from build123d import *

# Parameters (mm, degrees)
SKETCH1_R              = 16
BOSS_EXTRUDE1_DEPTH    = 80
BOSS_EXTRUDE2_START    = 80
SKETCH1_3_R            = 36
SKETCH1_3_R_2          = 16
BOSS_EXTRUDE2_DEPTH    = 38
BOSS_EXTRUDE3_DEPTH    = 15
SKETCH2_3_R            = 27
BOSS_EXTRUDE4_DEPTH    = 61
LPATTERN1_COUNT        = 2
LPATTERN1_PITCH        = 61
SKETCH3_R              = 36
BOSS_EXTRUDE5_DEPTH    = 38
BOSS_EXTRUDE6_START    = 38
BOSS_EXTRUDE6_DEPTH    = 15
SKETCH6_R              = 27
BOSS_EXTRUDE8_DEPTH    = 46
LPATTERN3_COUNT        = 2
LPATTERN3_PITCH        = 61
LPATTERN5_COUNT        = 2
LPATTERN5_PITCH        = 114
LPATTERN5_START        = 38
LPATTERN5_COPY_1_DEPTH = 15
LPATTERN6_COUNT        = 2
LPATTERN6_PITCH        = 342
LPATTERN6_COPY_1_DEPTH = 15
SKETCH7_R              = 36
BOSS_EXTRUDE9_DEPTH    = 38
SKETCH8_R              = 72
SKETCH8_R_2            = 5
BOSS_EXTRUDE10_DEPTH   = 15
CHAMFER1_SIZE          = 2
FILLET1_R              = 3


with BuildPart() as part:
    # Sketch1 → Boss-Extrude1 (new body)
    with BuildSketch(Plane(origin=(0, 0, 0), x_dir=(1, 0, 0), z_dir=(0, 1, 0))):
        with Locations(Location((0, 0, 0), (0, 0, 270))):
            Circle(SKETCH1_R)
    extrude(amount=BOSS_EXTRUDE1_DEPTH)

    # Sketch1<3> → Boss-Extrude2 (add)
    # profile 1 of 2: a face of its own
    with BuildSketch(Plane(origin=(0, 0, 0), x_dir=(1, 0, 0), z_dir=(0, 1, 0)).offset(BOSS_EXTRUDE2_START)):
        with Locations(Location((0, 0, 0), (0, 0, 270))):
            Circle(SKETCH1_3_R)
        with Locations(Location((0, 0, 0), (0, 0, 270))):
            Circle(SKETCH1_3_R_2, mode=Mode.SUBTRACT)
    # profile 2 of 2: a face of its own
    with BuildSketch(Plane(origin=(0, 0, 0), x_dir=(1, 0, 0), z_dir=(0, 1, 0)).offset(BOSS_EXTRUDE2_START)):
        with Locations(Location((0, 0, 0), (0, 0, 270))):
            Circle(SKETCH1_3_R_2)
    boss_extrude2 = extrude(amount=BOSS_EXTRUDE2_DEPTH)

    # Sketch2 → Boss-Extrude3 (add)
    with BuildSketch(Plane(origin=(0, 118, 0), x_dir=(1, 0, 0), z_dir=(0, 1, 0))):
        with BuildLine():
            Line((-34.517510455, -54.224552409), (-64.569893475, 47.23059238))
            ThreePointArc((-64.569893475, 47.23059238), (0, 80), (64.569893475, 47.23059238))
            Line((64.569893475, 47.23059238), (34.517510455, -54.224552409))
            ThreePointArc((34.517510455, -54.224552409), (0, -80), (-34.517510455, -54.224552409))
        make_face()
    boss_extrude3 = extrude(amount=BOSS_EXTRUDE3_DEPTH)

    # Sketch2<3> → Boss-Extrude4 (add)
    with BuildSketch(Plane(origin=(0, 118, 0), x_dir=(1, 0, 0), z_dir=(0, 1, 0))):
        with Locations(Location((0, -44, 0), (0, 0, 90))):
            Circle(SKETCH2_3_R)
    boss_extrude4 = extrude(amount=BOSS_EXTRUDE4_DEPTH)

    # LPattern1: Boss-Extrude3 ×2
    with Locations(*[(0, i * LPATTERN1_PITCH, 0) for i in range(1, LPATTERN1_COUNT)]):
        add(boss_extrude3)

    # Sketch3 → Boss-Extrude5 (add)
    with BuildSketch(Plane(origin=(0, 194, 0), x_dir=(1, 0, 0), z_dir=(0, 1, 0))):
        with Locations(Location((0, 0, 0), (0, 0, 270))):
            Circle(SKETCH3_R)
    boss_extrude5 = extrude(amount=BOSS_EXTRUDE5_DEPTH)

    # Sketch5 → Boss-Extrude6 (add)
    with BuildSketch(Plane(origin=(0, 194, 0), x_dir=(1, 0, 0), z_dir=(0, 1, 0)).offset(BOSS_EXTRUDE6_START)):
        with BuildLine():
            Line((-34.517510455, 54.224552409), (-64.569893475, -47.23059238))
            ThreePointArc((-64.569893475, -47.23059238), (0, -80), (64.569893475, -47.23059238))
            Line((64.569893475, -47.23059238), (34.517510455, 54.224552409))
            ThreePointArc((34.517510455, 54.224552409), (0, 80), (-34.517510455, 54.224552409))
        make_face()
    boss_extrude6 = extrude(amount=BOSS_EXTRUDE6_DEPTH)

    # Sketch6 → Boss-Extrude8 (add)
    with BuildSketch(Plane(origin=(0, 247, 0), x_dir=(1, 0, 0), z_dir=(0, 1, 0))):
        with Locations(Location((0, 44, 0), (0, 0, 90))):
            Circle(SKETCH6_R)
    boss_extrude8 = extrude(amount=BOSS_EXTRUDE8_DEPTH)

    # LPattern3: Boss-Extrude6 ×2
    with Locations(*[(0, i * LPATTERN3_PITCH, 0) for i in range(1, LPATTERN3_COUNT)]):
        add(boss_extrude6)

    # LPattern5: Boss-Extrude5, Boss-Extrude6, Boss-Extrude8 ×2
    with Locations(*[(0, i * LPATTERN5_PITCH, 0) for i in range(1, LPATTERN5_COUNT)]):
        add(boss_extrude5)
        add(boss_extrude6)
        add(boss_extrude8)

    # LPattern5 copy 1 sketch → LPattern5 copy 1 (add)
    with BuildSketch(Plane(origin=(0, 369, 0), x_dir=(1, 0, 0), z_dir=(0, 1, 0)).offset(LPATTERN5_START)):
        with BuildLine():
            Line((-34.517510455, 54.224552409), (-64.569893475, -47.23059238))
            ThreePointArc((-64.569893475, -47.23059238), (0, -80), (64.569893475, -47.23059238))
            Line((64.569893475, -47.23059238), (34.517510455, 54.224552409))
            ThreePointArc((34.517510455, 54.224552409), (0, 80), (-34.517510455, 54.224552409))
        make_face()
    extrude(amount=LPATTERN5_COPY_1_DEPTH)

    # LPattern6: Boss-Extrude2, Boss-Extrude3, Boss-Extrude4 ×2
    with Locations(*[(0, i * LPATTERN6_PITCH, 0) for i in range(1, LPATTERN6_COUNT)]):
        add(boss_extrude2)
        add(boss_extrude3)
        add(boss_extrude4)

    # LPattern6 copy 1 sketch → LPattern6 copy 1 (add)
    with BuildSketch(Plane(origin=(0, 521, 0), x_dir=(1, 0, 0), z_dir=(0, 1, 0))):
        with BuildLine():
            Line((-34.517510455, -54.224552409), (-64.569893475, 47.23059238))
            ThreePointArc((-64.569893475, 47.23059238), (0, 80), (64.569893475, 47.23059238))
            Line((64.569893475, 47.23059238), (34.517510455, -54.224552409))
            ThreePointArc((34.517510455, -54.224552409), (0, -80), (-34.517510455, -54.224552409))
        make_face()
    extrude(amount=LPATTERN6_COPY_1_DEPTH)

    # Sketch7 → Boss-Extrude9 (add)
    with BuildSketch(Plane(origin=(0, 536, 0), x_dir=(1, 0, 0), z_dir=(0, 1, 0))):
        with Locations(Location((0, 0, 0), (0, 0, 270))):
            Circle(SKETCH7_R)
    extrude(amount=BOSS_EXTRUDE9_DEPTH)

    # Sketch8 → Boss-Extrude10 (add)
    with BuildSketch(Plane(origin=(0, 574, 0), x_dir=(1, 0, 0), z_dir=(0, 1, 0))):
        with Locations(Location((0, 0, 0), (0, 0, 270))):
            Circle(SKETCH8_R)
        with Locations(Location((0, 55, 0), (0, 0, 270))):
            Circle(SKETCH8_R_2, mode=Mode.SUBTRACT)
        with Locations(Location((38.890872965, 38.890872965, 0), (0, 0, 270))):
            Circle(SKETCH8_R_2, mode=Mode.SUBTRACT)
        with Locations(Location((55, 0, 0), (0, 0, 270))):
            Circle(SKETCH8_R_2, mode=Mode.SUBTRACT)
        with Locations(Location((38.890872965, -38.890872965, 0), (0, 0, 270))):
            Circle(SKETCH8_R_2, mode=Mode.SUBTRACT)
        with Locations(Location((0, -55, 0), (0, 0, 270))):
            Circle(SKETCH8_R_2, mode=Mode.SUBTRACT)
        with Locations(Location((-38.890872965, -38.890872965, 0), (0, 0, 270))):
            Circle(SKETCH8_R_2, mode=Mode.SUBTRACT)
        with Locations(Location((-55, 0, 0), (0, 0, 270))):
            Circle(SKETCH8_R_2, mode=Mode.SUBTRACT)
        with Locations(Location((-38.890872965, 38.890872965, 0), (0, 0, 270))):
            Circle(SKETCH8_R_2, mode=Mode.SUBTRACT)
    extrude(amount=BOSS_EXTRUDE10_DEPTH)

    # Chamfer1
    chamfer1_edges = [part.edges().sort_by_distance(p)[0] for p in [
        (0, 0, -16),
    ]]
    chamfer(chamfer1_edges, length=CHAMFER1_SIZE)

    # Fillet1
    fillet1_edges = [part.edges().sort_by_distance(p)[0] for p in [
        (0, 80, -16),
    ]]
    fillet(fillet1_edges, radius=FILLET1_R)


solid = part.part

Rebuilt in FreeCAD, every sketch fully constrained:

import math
import FreeCAD as App
import Part
import Sketcher
from FreeCAD import Vector
Q = App.Units.Quantity


def edges_at(feature, points):
    """Names of the edges that pass closest to the given points."""
    edges = feature.Shape.Edges
    near = lambda p: min(range(len(edges)), key=lambda i: edges[i].distToShape(Part.Vertex(*p))[0])
    return sorted({f"Edge{near(p) + 1}" for p in points})

doc = App.newDocument("Part")
body = doc.addObject("PartDesign::Body", "Body")

# Sketch on XZ plane
sketch1 = body.newObject("Sketcher::SketchObject", "Sketch")
sketch1.AttachmentSupport = (doc.getObject("XZ_Plane"), [""])
sketch1.MapMode = "FlatFace"
sketch1.addGeometry(Part.Circle(Vector(0, 0, 0), Vector(0, 0, 1), 16), False)
sketch1.addConstraint(Sketcher.Constraint("Coincident", 0, 3, -1, 1))
sketch1.addConstraint(Sketcher.Constraint("Diameter", 0, Q("32 mm")))
pad1 = body.newObject("PartDesign::Pad", "Pad")
pad1.Profile = sketch1
pad1.Length = 80
pad1.Reversed = True

# Sketch on XZ plane
sketch2 = body.newObject("Sketcher::SketchObject", "Sketch001")
sketch2.AttachmentSupport = (doc.getObject("XZ_Plane"), [""])
sketch2.MapMode = "FlatFace"
sketch2.AttachmentOffset = App.Placement(Vector(0, 0, -80), App.Rotation())
sketch2.addGeometry(Part.Circle(Vector(0, 0, 0), Vector(0, 0, 1), 36), False)
sketch2.addConstraint(Sketcher.Constraint("Coincident", 0, 3, -1, 1))
sketch2.addConstraint(Sketcher.Constraint("Diameter", 0, Q("72 mm")))
pad2 = body.newObject("PartDesign::Pad", "Pad001")
pad2.Profile = sketch2
pad2.Length = 38
pad2.Reversed = True

# Sketch on XZ plane
sketch3 = body.newObject("Sketcher::SketchObject", "Sketch002")
sketch3.AttachmentSupport = (doc.getObject("XZ_Plane"), [""])
sketch3.MapMode = "FlatFace"
sketch3.AttachmentOffset = App.Placement(Vector(0, 0, -118), App.Rotation())
sketch3.addGeometry(Part.LineSegment(Vector(-65, -47, 0), Vector(-35, 54, 0)), False)
sketch3.addGeometry(Part.ArcOfCircle(Part.Circle(Vector(0, 44, 0), Vector(0, 0, 1), 36), math.radians(16), math.radians(164)), False)
sketch3.addGeometry(Part.LineSegment(Vector(35, 54, 0), Vector(65, -47, 0)), False)
sketch3.addGeometry(Part.ArcOfCircle(Part.Circle(Vector(0, 0, 0), Vector(0, 0, 1), 80), math.radians(-144), math.radians(-36)), False)
sketch3.addConstraint(Sketcher.Constraint("Tangent", 0, 2, 1, 2))
sketch3.addConstraint(Sketcher.Constraint("Tangent", 1, 1, 2, 1))
sketch3.addConstraint(Sketcher.Constraint("Coincident", 2, 2, 3, 2))
sketch3.addConstraint(Sketcher.Constraint("Coincident", 3, 1, 0, 1))
sketch3.addConstraint(Sketcher.Constraint("Coincident", 3, 3, -1, 1))
sketch3.addConstraint(Sketcher.Constraint("Symmetric", 0, 2, 1, 1, -2))
sketch3.addConstraint(Sketcher.Constraint("Radius", 1, Q("36 mm")))
sketch3.addConstraint(Sketcher.Constraint("Radius", 3, Q("80 mm")))
sketch3.addConstraint(Sketcher.Constraint("DistanceY", -1, 1, 1, 3, Q("44 mm")))
sketch3.addConstraint(Sketcher.Constraint("Angle", 0, Q("73.5 deg")))
pad3 = body.newObject("PartDesign::Pad", "Pad002")
pad3.Profile = sketch3
pad3.Length = 15
pad3.Reversed = True

# Sketch on XZ plane
sketch4 = body.newObject("Sketcher::SketchObject", "Sketch003")
sketch4.AttachmentSupport = (doc.getObject("XZ_Plane"), [""])
sketch4.MapMode = "FlatFace"
sketch4.AttachmentOffset = App.Placement(Vector(0, 0, -118), App.Rotation())
sketch4.addGeometry(Part.Circle(Vector(0, 44, 0), Vector(0, 0, 1), 27), False)
sketch4.addConstraint(Sketcher.Constraint("PointOnObject", 0, 3, -2))
sketch4.addConstraint(Sketcher.Constraint("Diameter", 0, Q("54 mm")))
sketch4.addConstraint(Sketcher.Constraint("DistanceY", -1, 1, 0, 3, Q("44 mm")))
pad4 = body.newObject("PartDesign::Pad", "Pad003")
pad4.Profile = sketch4
pad4.Length = 61
pad4.Reversed = True
doc.recompute()

linearpattern = body.newObject("PartDesign::LinearPattern", "LinearPattern")
linearpattern.Originals = [pad3]
linearpattern.Direction = (doc.getObject("Y_Axis"), [""])
linearpattern.Mode = "offset"
linearpattern.Offset = 61
linearpattern.Occurrences = 2
body.Tip = linearpattern

# Sketch on XZ plane
sketch5 = body.newObject("Sketcher::SketchObject", "Sketch004")
sketch5.AttachmentSupport = (doc.getObject("XZ_Plane"), [""])
sketch5.MapMode = "FlatFace"
sketch5.AttachmentOffset = App.Placement(Vector(0, 0, -194), App.Rotation())
sketch5.addGeometry(Part.Circle(Vector(0, 0, 0), Vector(0, 0, 1), 36), False)
sketch5.addConstraint(Sketcher.Constraint("Coincident", 0, 3, -1, 1))
sketch5.addConstraint(Sketcher.Constraint("Diameter", 0, Q("72 mm")))
pad5 = body.newObject("PartDesign::Pad", "Pad004")
pad5.Profile = sketch5
pad5.Length = 38
pad5.Reversed = True

# Sketch on XZ plane
sketch6 = body.newObject("Sketcher::SketchObject", "Sketch005")
sketch6.AttachmentSupport = (doc.getObject("XZ_Plane"), [""])
sketch6.MapMode = "FlatFace"
sketch6.AttachmentOffset = App.Placement(Vector(0, 0, -232), App.Rotation())
sketch6.addGeometry(Part.LineSegment(Vector(-35, -54, 0), Vector(-65, 47, 0)), False)
sketch6.addGeometry(Part.ArcOfCircle(Part.Circle(Vector(0, 0, 0), Vector(0, 0, 1), 80), math.radians(36), math.radians(144)), False)
sketch6.addGeometry(Part.LineSegment(Vector(65, 47, 0), Vector(35, -54, 0)), False)
sketch6.addGeometry(Part.ArcOfCircle(Part.Circle(Vector(0, -44, 0), Vector(0, 0, 1), 36), math.radians(-164), math.radians(-16)), False)
sketch6.addConstraint(Sketcher.Constraint("Coincident", 0, 2, 1, 2))
sketch6.addConstraint(Sketcher.Constraint("Coincident", 1, 1, 2, 1))
sketch6.addConstraint(Sketcher.Constraint("Tangent", 2, 2, 3, 2))
sketch6.addConstraint(Sketcher.Constraint("Tangent", 3, 1, 0, 1))
sketch6.addConstraint(Sketcher.Constraint("Coincident", 1, 3, -1, 1))
sketch6.addConstraint(Sketcher.Constraint("Symmetric", 2, 2, 3, 1, -2))
sketch6.addConstraint(Sketcher.Constraint("Radius", 1, Q("80 mm")))
sketch6.addConstraint(Sketcher.Constraint("Radius", 3, Q("36 mm")))
sketch6.addConstraint(Sketcher.Constraint("DistanceY", 3, 3, -1, 1, Q("44 mm")))
sketch6.addConstraint(Sketcher.Constraint("Angle", 0, Q("106.5 deg")))
pad6 = body.newObject("PartDesign::Pad", "Pad005")
pad6.Profile = sketch6
pad6.Length = 15
pad6.Reversed = True

# Sketch on XZ plane
sketch7 = body.newObject("Sketcher::SketchObject", "Sketch006")
sketch7.AttachmentSupport = (doc.getObject("XZ_Plane"), [""])
sketch7.MapMode = "FlatFace"
sketch7.AttachmentOffset = App.Placement(Vector(0, 0, -247), App.Rotation())
sketch7.addGeometry(Part.Circle(Vector(0, -44, 0), Vector(0, 0, 1), 27), False)
sketch7.addConstraint(Sketcher.Constraint("PointOnObject", 0, 3, -2))
sketch7.addConstraint(Sketcher.Constraint("Diameter", 0, Q("54 mm")))
sketch7.addConstraint(Sketcher.Constraint("DistanceY", 0, 3, -1, 1, Q("44 mm")))
pad7 = body.newObject("PartDesign::Pad", "Pad006")
pad7.Profile = sketch7
pad7.Length = 46
pad7.Reversed = True
doc.recompute()

linearpattern2 = body.newObject("PartDesign::LinearPattern", "LinearPattern001")
linearpattern2.Originals = [pad6]
linearpattern2.Direction = (doc.getObject("Y_Axis"), [""])
linearpattern2.Mode = "offset"
linearpattern2.Offset = 61
linearpattern2.Occurrences = 2
body.Tip = linearpattern2
doc.recompute()

linearpattern3 = body.newObject("PartDesign::LinearPattern", "LinearPattern002")
linearpattern3.Originals = [pad5, pad6, pad7]
linearpattern3.Direction = (doc.getObject("Y_Axis"), [""])
linearpattern3.Mode = "offset"
linearpattern3.Offset = 114
linearpattern3.Occurrences = 2
body.Tip = linearpattern3

# Sketch on XZ plane
sketch8 = body.newObject("Sketcher::SketchObject", "Sketch007")
sketch8.AttachmentSupport = (doc.getObject("XZ_Plane"), [""])
sketch8.MapMode = "FlatFace"
sketch8.AttachmentOffset = App.Placement(Vector(0, 0, -407), App.Rotation())
sketch8.addGeometry(Part.LineSegment(Vector(-35, -54, 0), Vector(-65, 47, 0)), False)
sketch8.addGeometry(Part.ArcOfCircle(Part.Circle(Vector(0, 0, 0), Vector(0, 0, 1), 80), math.radians(36), math.radians(144)), False)
sketch8.addGeometry(Part.LineSegment(Vector(65, 47, 0), Vector(35, -54, 0)), False)
sketch8.addGeometry(Part.ArcOfCircle(Part.Circle(Vector(0, -44, 0), Vector(0, 0, 1), 36), math.radians(-164), math.radians(-16)), False)
sketch8.addConstraint(Sketcher.Constraint("Coincident", 0, 2, 1, 2))
sketch8.addConstraint(Sketcher.Constraint("Coincident", 1, 1, 2, 1))
sketch8.addConstraint(Sketcher.Constraint("Tangent", 2, 2, 3, 2))
sketch8.addConstraint(Sketcher.Constraint("Tangent", 3, 1, 0, 1))
sketch8.addConstraint(Sketcher.Constraint("Coincident", 1, 3, -1, 1))
sketch8.addConstraint(Sketcher.Constraint("Symmetric", 2, 2, 3, 1, -2))
sketch8.addConstraint(Sketcher.Constraint("Radius", 1, Q("80 mm")))
sketch8.addConstraint(Sketcher.Constraint("Radius", 3, Q("36 mm")))
sketch8.addConstraint(Sketcher.Constraint("DistanceY", 3, 3, -1, 1, Q("44 mm")))
sketch8.addConstraint(Sketcher.Constraint("Angle", 0, Q("106.5 deg")))
pad8 = body.newObject("PartDesign::Pad", "Pad007")
pad8.Profile = sketch8
pad8.Length = 15
pad8.Reversed = True
doc.recompute()

linearpattern4 = body.newObject("PartDesign::LinearPattern", "LinearPattern003")
linearpattern4.Originals = [pad2, pad3, pad4]
linearpattern4.Direction = (doc.getObject("Y_Axis"), [""])
linearpattern4.Mode = "offset"
linearpattern4.Offset = 342
linearpattern4.Occurrences = 2
body.Tip = linearpattern4

# Sketch on XZ plane
sketch9 = body.newObject("Sketcher::SketchObject", "Sketch008")
sketch9.AttachmentSupport = (doc.getObject("XZ_Plane"), [""])
sketch9.MapMode = "FlatFace"
sketch9.AttachmentOffset = App.Placement(Vector(0, 0, -521), App.Rotation())
sketch9.addGeometry(Part.LineSegment(Vector(-65, -47, 0), Vector(-35, 54, 0)), False)
sketch9.addGeometry(Part.ArcOfCircle(Part.Circle(Vector(0, 44, 0), Vector(0, 0, 1), 36), math.radians(16), math.radians(164)), False)
sketch9.addGeometry(Part.LineSegment(Vector(35, 54, 0), Vector(65, -47, 0)), False)
sketch9.addGeometry(Part.ArcOfCircle(Part.Circle(Vector(0, 0, 0), Vector(0, 0, 1), 80), math.radians(-144), math.radians(-36)), False)
sketch9.addConstraint(Sketcher.Constraint("Tangent", 0, 2, 1, 2))
sketch9.addConstraint(Sketcher.Constraint("Tangent", 1, 1, 2, 1))
sketch9.addConstraint(Sketcher.Constraint("Coincident", 2, 2, 3, 2))
sketch9.addConstraint(Sketcher.Constraint("Coincident", 3, 1, 0, 1))
sketch9.addConstraint(Sketcher.Constraint("Coincident", 3, 3, -1, 1))
sketch9.addConstraint(Sketcher.Constraint("Symmetric", 0, 2, 1, 1, -2))
sketch9.addConstraint(Sketcher.Constraint("Radius", 1, Q("36 mm")))
sketch9.addConstraint(Sketcher.Constraint("Radius", 3, Q("80 mm")))
sketch9.addConstraint(Sketcher.Constraint("DistanceY", -1, 1, 1, 3, Q("44 mm")))
sketch9.addConstraint(Sketcher.Constraint("Angle", 0, Q("73.5 deg")))
pad9 = body.newObject("PartDesign::Pad", "Pad008")
pad9.Profile = sketch9
pad9.Length = 15
pad9.Reversed = True

# Sketch on XZ plane
sketch10 = body.newObject("Sketcher::SketchObject", "Sketch009")
sketch10.AttachmentSupport = (doc.getObject("XZ_Plane"), [""])
sketch10.MapMode = "FlatFace"
sketch10.AttachmentOffset = App.Placement(Vector(0, 0, -536), App.Rotation())
sketch10.addGeometry(Part.Circle(Vector(0, 0, 0), Vector(0, 0, 1), 36), False)
sketch10.addConstraint(Sketcher.Constraint("Coincident", 0, 3, -1, 1))
sketch10.addConstraint(Sketcher.Constraint("Diameter", 0, Q("72 mm")))
pad10 = body.newObject("PartDesign::Pad", "Pad009")
pad10.Profile = sketch10
pad10.Length = 38
pad10.Reversed = True

# Sketch on XZ plane
sketch11 = body.newObject("Sketcher::SketchObject", "Sketch010")
sketch11.AttachmentSupport = (doc.getObject("XZ_Plane"), [""])
sketch11.MapMode = "FlatFace"
sketch11.AttachmentOffset = App.Placement(Vector(0, 0, -574), App.Rotation())
sketch11.addGeometry(Part.Circle(Vector(0, 0, 0), Vector(0, 0, 1), 72), False)
sketch11.addGeometry(Part.Circle(Vector(-39, -39, 0), Vector(0, 0, 1), 5), False)
sketch11.addGeometry(Part.Circle(Vector(0, -55, 0), Vector(0, 0, 1), 5), False)
sketch11.addGeometry(Part.Circle(Vector(-55, 0, 0), Vector(0, 0, 1), 5), False)
sketch11.addGeometry(Part.Circle(Vector(-39, 39, 0), Vector(0, 0, 1), 5), False)
sketch11.addGeometry(Part.Circle(Vector(39, -39, 0), Vector(0, 0, 1), 5), False)
sketch11.addGeometry(Part.Circle(Vector(55, 0, 0), Vector(0, 0, 1), 5), False)
sketch11.addGeometry(Part.Circle(Vector(0, 55, 0), Vector(0, 0, 1), 5), False)
sketch11.addGeometry(Part.Circle(Vector(39, 39, 0), Vector(0, 0, 1), 5), False)
sketch11.addConstraint(Sketcher.Constraint("Coincident", 0, 3, -1, 1))
sketch11.addConstraint(Sketcher.Constraint("Equal", 1, 2))
sketch11.addConstraint(Sketcher.Constraint("Equal", 2, 3))
sketch11.addConstraint(Sketcher.Constraint("Equal", 3, 4))
sketch11.addConstraint(Sketcher.Constraint("Equal", 4, 5))
sketch11.addConstraint(Sketcher.Constraint("Equal", 5, 6))
sketch11.addConstraint(Sketcher.Constraint("Equal", 6, 7))
sketch11.addConstraint(Sketcher.Constraint("Equal", 7, 8))
sketch11.addConstraint(Sketcher.Constraint("Symmetric", 4, 3, 5, 3, -1, 1))
sketch11.addConstraint(Sketcher.Constraint("Symmetric", 3, 3, 6, 3, -1, 1))
sketch11.addConstraint(Sketcher.Constraint("Symmetric", 2, 3, 7, 3, -1, 1))
sketch11.addConstraint(Sketcher.Constraint("Symmetric", 1, 3, 8, 3, -1, 1))
sketch11.addConstraint(Sketcher.Constraint("Symmetric", 1, 3, 5, 3, -2))
sketch11.addConstraint(Sketcher.Constraint("PointOnObject", 2, 3, -2))
sketch11.addConstraint(Sketcher.Constraint("PointOnObject", 3, 3, -1))
sketch11.addConstraint(Sketcher.Constraint("Diameter", 0, Q("144 mm")))
sketch11.addConstraint(Sketcher.Constraint("Diameter", 1, Q("10 mm")))
sketch11.addConstraint(Sketcher.Constraint("DistanceY", 2, 3, -1, 1, Q("55 mm")))
sketch11.addConstraint(Sketcher.Constraint("DistanceX", 3, 3, -1, 1, Q("55 mm")))
sketch11.addConstraint(Sketcher.Constraint("DistanceX", 1, 3, -1, 1, Q("38.890873 mm")))
sketch11.addConstraint(Sketcher.Constraint("DistanceY", 1, 3, -1, 1, Q("38.890873 mm")))
pad11 = body.newObject("PartDesign::Pad", "Pad010")
pad11.Profile = sketch11
pad11.Length = 15
pad11.Reversed = True
doc.recompute()

chamfer = body.newObject("PartDesign::Chamfer", "Chamfer")
chamfer.Base = (pad11, edges_at(pad11, [(0, 0, -16)]))
chamfer.Size = 2
doc.recompute()

fillet = body.newObject("PartDesign::Fillet", "Fillet")
fillet.Base = (chamfer, edges_at(chamfer, [(0, 80, -16)]))
fillet.Radius = 3

doc.recompute()
